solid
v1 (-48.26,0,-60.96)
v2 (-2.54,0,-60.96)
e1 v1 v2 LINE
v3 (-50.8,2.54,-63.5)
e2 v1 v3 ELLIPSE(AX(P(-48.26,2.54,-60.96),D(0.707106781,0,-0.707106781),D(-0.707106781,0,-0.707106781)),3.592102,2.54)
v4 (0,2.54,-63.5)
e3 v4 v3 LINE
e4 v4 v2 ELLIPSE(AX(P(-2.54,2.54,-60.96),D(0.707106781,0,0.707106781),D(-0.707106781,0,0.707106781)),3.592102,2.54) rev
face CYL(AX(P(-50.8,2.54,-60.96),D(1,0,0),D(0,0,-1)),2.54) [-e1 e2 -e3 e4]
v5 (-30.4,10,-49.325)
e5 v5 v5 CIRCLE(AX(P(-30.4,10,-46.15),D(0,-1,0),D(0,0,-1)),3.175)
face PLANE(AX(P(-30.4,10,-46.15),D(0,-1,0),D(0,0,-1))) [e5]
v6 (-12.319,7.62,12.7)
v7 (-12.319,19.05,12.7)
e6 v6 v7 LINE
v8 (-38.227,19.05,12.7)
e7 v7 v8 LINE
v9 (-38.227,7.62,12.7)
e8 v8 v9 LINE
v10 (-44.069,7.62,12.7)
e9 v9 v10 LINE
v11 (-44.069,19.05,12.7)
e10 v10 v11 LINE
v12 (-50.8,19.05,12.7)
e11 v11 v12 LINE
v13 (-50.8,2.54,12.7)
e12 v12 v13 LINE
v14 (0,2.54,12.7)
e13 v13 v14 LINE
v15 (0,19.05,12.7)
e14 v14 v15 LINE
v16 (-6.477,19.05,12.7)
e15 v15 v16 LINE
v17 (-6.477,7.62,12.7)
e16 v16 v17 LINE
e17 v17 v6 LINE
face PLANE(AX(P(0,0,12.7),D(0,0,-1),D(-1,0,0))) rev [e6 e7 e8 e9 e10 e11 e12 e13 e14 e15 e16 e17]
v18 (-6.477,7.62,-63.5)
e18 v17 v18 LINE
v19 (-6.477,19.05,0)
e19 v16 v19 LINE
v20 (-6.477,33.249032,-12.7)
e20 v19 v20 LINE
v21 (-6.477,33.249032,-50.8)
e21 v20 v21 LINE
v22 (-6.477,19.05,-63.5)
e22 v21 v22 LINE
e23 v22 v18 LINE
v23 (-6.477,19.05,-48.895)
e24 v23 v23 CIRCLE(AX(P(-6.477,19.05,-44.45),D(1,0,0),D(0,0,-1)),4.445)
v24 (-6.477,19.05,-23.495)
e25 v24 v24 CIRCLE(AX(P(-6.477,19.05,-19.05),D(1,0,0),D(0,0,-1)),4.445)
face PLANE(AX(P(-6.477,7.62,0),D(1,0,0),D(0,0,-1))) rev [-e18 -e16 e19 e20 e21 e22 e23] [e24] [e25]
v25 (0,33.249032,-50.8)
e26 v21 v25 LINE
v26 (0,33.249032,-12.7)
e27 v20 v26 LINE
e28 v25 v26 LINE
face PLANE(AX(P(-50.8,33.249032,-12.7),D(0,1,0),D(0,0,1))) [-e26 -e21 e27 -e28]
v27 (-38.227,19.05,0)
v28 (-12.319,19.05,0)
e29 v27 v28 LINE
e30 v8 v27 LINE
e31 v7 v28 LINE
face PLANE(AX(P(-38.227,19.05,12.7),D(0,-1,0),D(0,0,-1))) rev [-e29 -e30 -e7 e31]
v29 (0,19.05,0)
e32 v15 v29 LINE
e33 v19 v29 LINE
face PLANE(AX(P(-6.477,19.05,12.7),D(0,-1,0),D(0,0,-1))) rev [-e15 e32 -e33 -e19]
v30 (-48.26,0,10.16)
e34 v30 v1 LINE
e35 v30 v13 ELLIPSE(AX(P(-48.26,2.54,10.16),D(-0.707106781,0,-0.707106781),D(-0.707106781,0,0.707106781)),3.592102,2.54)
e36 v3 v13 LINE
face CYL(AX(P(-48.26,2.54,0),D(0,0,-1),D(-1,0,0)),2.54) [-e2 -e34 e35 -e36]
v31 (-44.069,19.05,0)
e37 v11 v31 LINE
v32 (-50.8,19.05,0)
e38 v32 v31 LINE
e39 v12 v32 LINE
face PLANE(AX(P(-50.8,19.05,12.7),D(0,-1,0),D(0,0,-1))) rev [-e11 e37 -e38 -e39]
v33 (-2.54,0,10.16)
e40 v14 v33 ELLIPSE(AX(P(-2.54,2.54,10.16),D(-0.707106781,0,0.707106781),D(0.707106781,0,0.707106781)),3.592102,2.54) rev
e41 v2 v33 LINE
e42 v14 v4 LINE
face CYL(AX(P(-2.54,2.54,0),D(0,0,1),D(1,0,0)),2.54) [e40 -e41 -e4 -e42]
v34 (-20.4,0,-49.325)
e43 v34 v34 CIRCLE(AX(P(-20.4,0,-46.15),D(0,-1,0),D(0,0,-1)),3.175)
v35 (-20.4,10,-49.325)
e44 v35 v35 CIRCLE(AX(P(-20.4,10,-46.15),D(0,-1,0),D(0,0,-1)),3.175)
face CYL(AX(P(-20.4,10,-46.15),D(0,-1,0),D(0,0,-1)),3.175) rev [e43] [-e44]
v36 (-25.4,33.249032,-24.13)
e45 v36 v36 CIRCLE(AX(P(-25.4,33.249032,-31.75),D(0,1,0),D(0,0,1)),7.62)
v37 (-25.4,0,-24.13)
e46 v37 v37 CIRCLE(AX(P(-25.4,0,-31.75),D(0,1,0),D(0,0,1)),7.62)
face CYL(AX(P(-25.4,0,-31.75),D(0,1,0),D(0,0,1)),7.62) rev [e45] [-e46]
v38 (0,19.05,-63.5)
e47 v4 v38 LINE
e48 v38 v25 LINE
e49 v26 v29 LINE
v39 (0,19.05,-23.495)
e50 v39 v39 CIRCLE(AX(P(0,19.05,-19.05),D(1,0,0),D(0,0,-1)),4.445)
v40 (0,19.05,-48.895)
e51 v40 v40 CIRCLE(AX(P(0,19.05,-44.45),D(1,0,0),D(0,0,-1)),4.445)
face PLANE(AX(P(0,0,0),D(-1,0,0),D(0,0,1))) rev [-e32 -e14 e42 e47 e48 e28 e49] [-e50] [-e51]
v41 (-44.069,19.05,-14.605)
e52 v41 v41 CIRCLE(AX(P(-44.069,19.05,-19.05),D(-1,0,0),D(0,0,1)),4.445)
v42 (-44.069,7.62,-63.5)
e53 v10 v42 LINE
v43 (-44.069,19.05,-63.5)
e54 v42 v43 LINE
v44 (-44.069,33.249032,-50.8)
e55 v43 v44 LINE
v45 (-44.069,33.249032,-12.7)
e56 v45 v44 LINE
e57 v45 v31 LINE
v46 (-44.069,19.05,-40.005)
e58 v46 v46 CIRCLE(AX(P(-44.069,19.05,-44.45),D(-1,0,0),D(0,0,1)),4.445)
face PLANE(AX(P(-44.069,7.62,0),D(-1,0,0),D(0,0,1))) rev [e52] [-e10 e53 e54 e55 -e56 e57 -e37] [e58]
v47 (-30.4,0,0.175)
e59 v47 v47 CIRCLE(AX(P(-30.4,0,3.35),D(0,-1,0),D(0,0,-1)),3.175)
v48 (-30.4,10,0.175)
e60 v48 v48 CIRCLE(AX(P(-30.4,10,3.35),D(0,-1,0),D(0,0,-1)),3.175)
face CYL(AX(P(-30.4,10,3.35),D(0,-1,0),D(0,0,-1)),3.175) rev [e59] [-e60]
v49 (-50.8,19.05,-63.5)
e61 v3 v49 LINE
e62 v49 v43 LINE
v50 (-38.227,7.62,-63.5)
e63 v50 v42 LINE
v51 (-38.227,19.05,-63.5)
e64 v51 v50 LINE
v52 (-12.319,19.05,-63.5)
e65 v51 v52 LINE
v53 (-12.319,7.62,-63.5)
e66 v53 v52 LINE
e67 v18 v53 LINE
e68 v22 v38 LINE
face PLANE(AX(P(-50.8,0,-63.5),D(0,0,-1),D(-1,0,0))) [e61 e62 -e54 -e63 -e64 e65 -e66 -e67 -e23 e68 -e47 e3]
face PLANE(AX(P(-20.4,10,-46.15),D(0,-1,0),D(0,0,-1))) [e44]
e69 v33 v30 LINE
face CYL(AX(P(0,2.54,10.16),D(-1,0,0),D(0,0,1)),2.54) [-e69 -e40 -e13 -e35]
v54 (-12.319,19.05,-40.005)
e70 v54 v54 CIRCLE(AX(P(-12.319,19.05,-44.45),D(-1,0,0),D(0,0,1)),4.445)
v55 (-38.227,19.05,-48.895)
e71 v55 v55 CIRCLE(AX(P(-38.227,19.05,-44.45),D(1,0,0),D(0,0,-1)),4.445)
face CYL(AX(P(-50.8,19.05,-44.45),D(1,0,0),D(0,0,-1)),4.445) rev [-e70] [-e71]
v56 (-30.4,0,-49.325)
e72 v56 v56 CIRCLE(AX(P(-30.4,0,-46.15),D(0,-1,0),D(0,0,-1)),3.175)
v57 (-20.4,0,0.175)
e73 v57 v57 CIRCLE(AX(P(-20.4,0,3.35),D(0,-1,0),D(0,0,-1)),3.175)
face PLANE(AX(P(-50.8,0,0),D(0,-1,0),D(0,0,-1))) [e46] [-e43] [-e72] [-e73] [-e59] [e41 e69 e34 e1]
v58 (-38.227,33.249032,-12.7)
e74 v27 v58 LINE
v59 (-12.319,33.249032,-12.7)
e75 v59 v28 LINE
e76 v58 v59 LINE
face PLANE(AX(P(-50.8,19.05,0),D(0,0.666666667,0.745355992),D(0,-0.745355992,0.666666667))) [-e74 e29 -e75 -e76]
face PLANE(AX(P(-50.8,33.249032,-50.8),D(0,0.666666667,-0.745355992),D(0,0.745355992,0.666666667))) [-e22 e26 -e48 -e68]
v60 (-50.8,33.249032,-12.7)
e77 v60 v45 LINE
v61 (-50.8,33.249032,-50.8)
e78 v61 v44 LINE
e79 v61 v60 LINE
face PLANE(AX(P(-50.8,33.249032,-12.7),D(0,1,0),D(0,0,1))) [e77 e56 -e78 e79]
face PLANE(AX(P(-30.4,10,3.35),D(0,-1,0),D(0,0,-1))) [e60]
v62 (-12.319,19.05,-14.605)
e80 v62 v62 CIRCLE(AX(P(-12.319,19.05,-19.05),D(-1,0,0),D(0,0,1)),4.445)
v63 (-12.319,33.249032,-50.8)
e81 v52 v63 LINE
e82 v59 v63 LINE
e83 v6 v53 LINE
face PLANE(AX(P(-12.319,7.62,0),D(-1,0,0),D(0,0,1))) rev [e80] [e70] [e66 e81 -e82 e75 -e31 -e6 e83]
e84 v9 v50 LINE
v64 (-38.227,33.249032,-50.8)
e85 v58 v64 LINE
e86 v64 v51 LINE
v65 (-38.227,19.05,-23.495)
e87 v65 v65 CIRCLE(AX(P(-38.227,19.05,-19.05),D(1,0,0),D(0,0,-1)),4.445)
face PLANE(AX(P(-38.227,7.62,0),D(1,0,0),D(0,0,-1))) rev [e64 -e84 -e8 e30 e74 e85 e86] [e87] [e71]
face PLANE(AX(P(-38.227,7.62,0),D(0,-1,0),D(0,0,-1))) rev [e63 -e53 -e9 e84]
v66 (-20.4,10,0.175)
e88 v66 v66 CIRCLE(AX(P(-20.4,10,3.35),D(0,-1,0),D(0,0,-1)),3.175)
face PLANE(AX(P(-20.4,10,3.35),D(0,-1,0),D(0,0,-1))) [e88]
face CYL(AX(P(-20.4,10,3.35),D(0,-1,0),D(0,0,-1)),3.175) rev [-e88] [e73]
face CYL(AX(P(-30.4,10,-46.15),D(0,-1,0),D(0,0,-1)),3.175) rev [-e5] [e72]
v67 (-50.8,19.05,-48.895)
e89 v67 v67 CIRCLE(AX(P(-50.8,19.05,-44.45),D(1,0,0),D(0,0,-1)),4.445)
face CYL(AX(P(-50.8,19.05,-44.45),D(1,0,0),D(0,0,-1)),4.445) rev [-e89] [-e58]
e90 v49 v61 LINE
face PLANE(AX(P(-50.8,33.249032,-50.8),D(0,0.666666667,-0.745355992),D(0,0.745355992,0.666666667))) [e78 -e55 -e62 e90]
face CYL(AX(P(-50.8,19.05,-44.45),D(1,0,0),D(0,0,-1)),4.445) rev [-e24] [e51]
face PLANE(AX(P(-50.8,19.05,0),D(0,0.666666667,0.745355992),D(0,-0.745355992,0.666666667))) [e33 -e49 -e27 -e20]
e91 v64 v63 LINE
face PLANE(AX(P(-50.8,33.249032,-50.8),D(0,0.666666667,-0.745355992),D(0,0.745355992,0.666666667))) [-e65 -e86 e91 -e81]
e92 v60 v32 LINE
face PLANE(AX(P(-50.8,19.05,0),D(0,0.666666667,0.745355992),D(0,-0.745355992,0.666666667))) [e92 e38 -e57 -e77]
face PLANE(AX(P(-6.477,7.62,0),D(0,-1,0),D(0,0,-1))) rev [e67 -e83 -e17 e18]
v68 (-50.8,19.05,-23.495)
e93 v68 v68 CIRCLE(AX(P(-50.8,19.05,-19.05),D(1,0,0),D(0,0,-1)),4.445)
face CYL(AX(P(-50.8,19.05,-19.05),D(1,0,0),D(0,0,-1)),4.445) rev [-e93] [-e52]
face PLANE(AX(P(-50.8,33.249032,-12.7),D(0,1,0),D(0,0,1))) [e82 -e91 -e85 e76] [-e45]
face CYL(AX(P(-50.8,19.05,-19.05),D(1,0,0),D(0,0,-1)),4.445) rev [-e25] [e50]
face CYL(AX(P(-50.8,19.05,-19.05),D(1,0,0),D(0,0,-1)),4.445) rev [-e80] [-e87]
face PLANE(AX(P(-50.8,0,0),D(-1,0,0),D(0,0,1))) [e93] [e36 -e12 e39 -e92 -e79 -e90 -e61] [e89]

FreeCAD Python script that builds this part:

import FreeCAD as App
import Part
import Sketcher
Q = App.Units.Quantity


def edges_at(feature, points):
    """Names of the edges that pass closest to the given points."""
    edges = feature.Shape.Edges
    near = lambda p: min(range(len(edges)), key=lambda i: edges[i].distToShape(Part.Vertex(*p))[0])
    return sorted({f"Edge{near(p) + 1}" for p in points})

doc = App.newDocument("Part")
body = doc.addObject("PartDesign::Body", "Body")

# Sketch on YZ plane
sketch1 = body.newObject("Sketcher::SketchObject", "Sketch")
sketch1.AttachmentSupport = (doc.getObject("YZ_Plane"), [""])
sketch1.MapMode = "FlatFace"
sketch1.addGeometry(Part.LineSegment(App.Vector(6, 0, 0), App.Vector(0, 0, 0)), False)
sketch1.addGeometry(Part.LineSegment(App.Vector(0, 0, 0), App.Vector(0, -64, 0)), False)
sketch1.addGeometry(Part.LineSegment(App.Vector(0, -64, 0), App.Vector(6, -64, 0)), False)
sketch1.addGeometry(Part.LineSegment(App.Vector(6, -64, 0), App.Vector(6, 0, 0)), False)
sketch1.addConstraint(Sketcher.Constraint("Coincident", 0, 2, 1, 1))
sketch1.addConstraint(Sketcher.Constraint("Coincident", 1, 2, 2, 1))
sketch1.addConstraint(Sketcher.Constraint("Coincident", 2, 2, 3, 1))
sketch1.addConstraint(Sketcher.Constraint("Coincident", 3, 2, 0, 1))
sketch1.addConstraint(Sketcher.Constraint("Horizontal", 0))
sketch1.addConstraint(Sketcher.Constraint("Vertical", 1))
sketch1.addConstraint(Sketcher.Constraint("Horizontal", 2))
sketch1.addConstraint(Sketcher.Constraint("Vertical", 3))
sketch1.addConstraint(Sketcher.Constraint("Coincident", 0, 2, -1, 1))
sketch1.addConstraint(Sketcher.Constraint("DistanceY", 1, 2, 1, 1, Q("2.5 in")))
sketch1.addConstraint(Sketcher.Constraint("DistanceX", 0, 2, 0, 1, Q("0.25 in")))
pad1 = body.newObject("PartDesign::Pad", "Pad")
pad1.Profile = sketch1
pad1.Length = Q("2 in")
pad1.Reversed = True

# Sketch on YZ plane
sketch2 = body.newObject("Sketcher::SketchObject", "Sketch001")
sketch2.AttachmentSupport = (doc.getObject("YZ_Plane"), [""])
sketch2.MapMode = "FlatFace"
sketch2.addGeometry(Part.LineSegment(App.Vector(19, 0, 0), App.Vector(6, 0, 0)), False)
sketch2.addGeometry(Part.LineSegment(App.Vector(6, 0, 0), App.Vector(6, -64, 0)), False)
sketch2.addGeometry(Part.LineSegment(App.Vector(6, -64, 0), App.Vector(19, -64, 0)), False)
sketch2.addGeometry(Part.LineSegment(App.Vector(19, -64, 0), App.Vector(33, -51, 0)), False)
sketch2.addGeometry(Part.LineSegment(App.Vector(33, -51, 0), App.Vector(33, -13, 0)), False)
sketch2.addGeometry(Part.LineSegment(App.Vector(33, -13, 0), App.Vector(19, 0, 0)), False)
sketch2.addConstraint(Sketcher.Constraint("Coincident", 0, 2, 1, 1))
sketch2.addConstraint(Sketcher.Constraint("Coincident", 1, 2, 2, 1))
sketch2.addConstraint(Sketcher.Constraint("Coincident", 2, 2, 3, 1))
sketch2.addConstraint(Sketcher.Constraint("Coincident", 3, 2, 4, 1))
sketch2.addConstraint(Sketcher.Constraint("Coincident", 4, 2, 5, 1))
sketch2.addConstraint(Sketcher.Constraint("Coincident", 5, 2, 0, 1))
sketch2.addConstraint(Sketcher.Constraint("Horizontal", 0))
sketch2.addConstraint(Sketcher.Constraint("Vertical", 1))
sketch2.addConstraint(Sketcher.Constraint("Horizontal", 2))
sketch2.addConstraint(Sketcher.Constraint("Vertical", 4))
sketch2.addConstraint(Sketcher.Constraint("PointOnObject", 0, 2, -1))
sketch2.addConstraint(Sketcher.Constraint("Vertical", 2, 2, 5, 2))
sketch2.addConstraint(Sketcher.Constraint("Equal", 3, 5))
sketch2.addConstraint(Sketcher.Constraint("DistanceX", 0, 2, 0, 1, Q("0.5 in")))
sketch2.addConstraint(Sketcher.Constraint("DistanceY", 1, 2, 1, 1, Q("2.5 in")))
sketch2.addConstraint(Sketcher.Constraint("DistanceY", 4, 1, 4, 2, Q("1.5 in")))
sketch2.addConstraint(Sketcher.Constraint("Distance", 3, Q("0.75 in")))
sketch2.addConstraint(Sketcher.Constraint("DistanceX", -1, 1, 0, 2, Q("0.25 in")))
pad2 = body.newObject("PartDesign::Pad", "Pad001")
pad2.Profile = sketch2
pad2.Length = Q("2 in")
pad2.Reversed = True

# Sketch on XY plane
sketch3 = body.newObject("Sketcher::SketchObject", "Sketch002")
sketch3.AttachmentSupport = (doc.getObject("XY_Plane"), [""])
sketch3.MapMode = "FlatFace"
sketch3.AttachmentOffset = App.Placement(App.Vector(0, 0, -2.5 * 25.4), App.Rotation())
sketch3.addGeometry(Part.LineSegment(App.Vector(-6, 33, 0), App.Vector(-6, 8, 0)), False)
sketch3.addGeometry(Part.LineSegment(App.Vector(-6, 8, 0), App.Vector(-12, 8, 0)), False)
sketch3.addGeometry(Part.LineSegment(App.Vector(-12, 8, 0), App.Vector(-12, 33, 0)), False)
sketch3.addGeometry(Part.LineSegment(App.Vector(-12, 33, 0), App.Vector(-6, 33, 0)), False)
sketch3.addConstraint(Sketcher.Constraint("Coincident", 0, 2, 1, 1))
sketch3.addConstraint(Sketcher.Constraint("Coincident", 1, 2, 2, 1))
sketch3.addConstraint(Sketcher.Constraint("Coincident", 2, 2, 3, 1))
sketch3.addConstraint(Sketcher.Constraint("Coincident", 3, 2, 0, 1))
sketch3.addConstraint(Sketcher.Constraint("Vertical", 0))
sketch3.addConstraint(Sketcher.Constraint("Horizontal", 1))
sketch3.addConstraint(Sketcher.Constraint("Vertical", 2))
sketch3.addConstraint(Sketcher.Constraint("Horizontal", 3))
sketch3.addConstraint(Sketcher.Constraint("DistanceX", 1, 2, 1, 1, Q("0.23 in")))
sketch3.addConstraint(Sketcher.Constraint("DistanceY", -1, 1, 0, 2, Q("0.3 in")))
sketch3.addConstraint(Sketcher.Constraint("DistanceX", 0, 2, -1, 1, Q("0.255 in")))
sketch3.addConstraint(Sketcher.Constraint("DistanceY", 0, 2, 0, 1, Q("25.629032 mm")))
pocket1 = body.newObject("PartDesign::Pocket", "Pocket")
pocket1.Profile = sketch3
pocket1.Type = "ThroughAll"
pocket1.Reversed = True
doc.recompute()

linearpattern = body.newObject("PartDesign::LinearPattern", "LinearPattern")
linearpattern.Originals = [pocket1]
linearpattern.Direction = (doc.getObject("X_Axis"), [""])
linearpattern.Mode = "offset"
linearpattern.Offset = Q("1.25 in")
linearpattern.Occurrences = 2
linearpattern.Reversed = True
body.Tip = linearpattern

# Sketch on YZ plane
sketch4 = body.newObject("Sketcher::SketchObject", "Sketch003")
sketch4.AttachmentSupport = (doc.getObject("YZ_Plane"), [""])
sketch4.MapMode = "FlatFace"
sketch4.addGeometry(Part.Circle(App.Vector(19.1, -19.1, 0), App.Vector(0, 0, 1), 4.4), False)
sketch4.addGeometry(Part.Circle(App.Vector(19.1, -44.5, 0), App.Vector(0, 0, 1), 4.4), False)
sketch4.addConstraint(Sketcher.Constraint("Equal", 0, 1))
sketch4.addConstraint(Sketcher.Constraint("Vertical", 0, 3, 1, 3))
sketch4.addConstraint(Sketcher.Constraint("Diameter", 0, Q("0.35 in")))
sketch4.addConstraint(Sketcher.Constraint("DistanceY", 1, 3, 0, 3, Q("1 in")))
sketch4.addConstraint(Sketcher.Constraint("DistanceX", -1, 1, 0, 3, Q("0.75 in")))
sketch4.addConstraint(Sketcher.Constraint("DistanceY", 0, 3, -1, 1, Q("0.75 in")))
pocket2 = body.newObject("PartDesign::Pocket", "Pocket001")
pocket2.Profile = sketch4
pocket2.Type = "ThroughAll"

# Sketch on XY plane
sketch5 = body.newObject("Sketcher::SketchObject", "Sketch004")
sketch5.AttachmentSupport = (doc.getObject("XY_Plane"), [""])
sketch5.MapMode = "FlatFace"
sketch5.addGeometry(Part.LineSegment(App.Vector(-51, 0, 0), App.Vector(0, 0, 0)), False)
sketch5.addGeometry(Part.LineSegment(App.Vector(0, 0, 0), App.Vector(0, 19, 0)), False)
sketch5.addGeometry(Part.LineSegment(App.Vector(0, 19, 0), App.Vector(-6, 19, 0)), False)
sketch5.addGeometry(Part.LineSegment(App.Vector(-6, 19, 0), App.Vector(-6, 8, 0)), False)
sketch5.addGeometry(Part.LineSegment(App.Vector(-6, 8, 0), App.Vector(-12, 8, 0)), False)
sketch5.addGeometry(Part.LineSegment(App.Vector(-12, 8, 0), App.Vector(-12, 19, 0)), False)
sketch5.addGeometry(Part.LineSegment(App.Vector(-12, 19, 0), App.Vector(-38, 19, 0)), False)
sketch5.addGeometry(Part.LineSegment(App.Vector(-38, 19, 0), App.Vector(-38, 8, 0)), False)
sketch5.addGeometry(Part.LineSegment(App.Vector(-38, 8, 0), App.Vector(-44, 8, 0)), False)
sketch5.addGeometry(Part.LineSegment(App.Vector(-44, 8, 0), App.Vector(-44, 19, 0)), False)
sketch5.addGeometry(Part.LineSegment(App.Vector(-44, 19, 0), App.Vector(-51, 19, 0)), False)
sketch5.addGeometry(Part.LineSegment(App.Vector(-51, 19, 0), App.Vector(-51, 0, 0)), False)
sketch5.addConstraint(Sketcher.Constraint("Coincident", 0, 2, 1, 1))
sketch5.addConstraint(Sketcher.Constraint("Coincident", 1, 2, 2, 1))
sketch5.addConstraint(Sketcher.Constraint("Coincident", 2, 2, 3, 1))
sketch5.addConstraint(Sketcher.Constraint("Coincident", 3, 2, 4, 1))
sketch5.addConstraint(Sketcher.Constraint("Coincident", 4, 2, 5, 1))
sketch5.addConstraint(Sketcher.Constraint("Coincident", 5, 2, 6, 1))
sketch5.addConstraint(Sketcher.Constraint("Coincident", 6, 2, 7, 1))
sketch5.addConstraint(Sketcher.Constraint("Coincident", 7, 2, 8, 1))
sketch5.addConstraint(Sketcher.Constraint("Coincident", 8, 2, 9, 1))
sketch5.addConstraint(Sketcher.Constraint("Coincident", 9, 2, 10, 1))
sketch5.addConstraint(Sketcher.Constraint("Coincident", 10, 2, 11, 1))
sketch5.addConstraint(Sketcher.Constraint("Coincident", 11, 2, 0, 1))
sketch5.addConstraint(Sketcher.Constraint("Horizontal", 0))
sketch5.addConstraint(Sketcher.Constraint("Vertical", 1))
sketch5.addConstraint(Sketcher.Constraint("Horizontal", 2))
sketch5.addConstraint(Sketcher.Constraint("Vertical", 3))
sketch5.addConstraint(Sketcher.Constraint("Horizontal", 4))
sketch5.addConstraint(Sketcher.Constraint("Vertical", 5))
sketch5.addConstraint(Sketcher.Constraint("Horizontal", 6))
sketch5.addConstraint(Sketcher.Constraint("Vertical", 7))
sketch5.addConstraint(Sketcher.Constraint("Horizontal", 8))
sketch5.addConstraint(Sketcher.Constraint("Vertical", 9))
sketch5.addConstraint(Sketcher.Constraint("Horizontal", 10))
sketch5.addConstraint(Sketcher.Constraint("Vertical", 11))
sketch5.addConstraint(Sketcher.Constraint("Coincident", 0, 2, -1, 1))
sketch5.addConstraint(Sketcher.Constraint("Horizontal", 2, 2, 5, 2))
sketch5.addConstraint(Sketcher.Constraint("Horizontal", 4, 2, 7, 2))
sketch5.addConstraint(Sketcher.Constraint("Horizontal", 6, 2, 9, 2))
sketch5.addConstraint(Sketcher.Constraint("Equal", 4, 8))
sketch5.addConstraint(Sketcher.Constraint("DistanceX", 0, 1, 0, 2, Q("2 in")))
sketch5.addConstraint(Sketcher.Constraint("DistanceX", 4, 2, 4, 1, Q("0.23 in")))
sketch5.addConstraint(Sketcher.Constraint("DistanceX", 6, 2, 6, 1, Q("1.02 in")))
sketch5.addConstraint(Sketcher.Constraint("DistanceY", 1, 1, 1, 2, Q("0.75 in")))
sketch5.addConstraint(Sketcher.Constraint("DistanceY", 3, 2, 3, 1, Q("0.45 in")))
sketch5.addConstraint(Sketcher.Constraint("DistanceX", 2, 2, 2, 1, Q("0.255 in")))
pad3 = body.newObject("PartDesign::Pad", "Pad002")
pad3.Profile = sketch5
pad3.Length = Q("0.5 in")

# Sketch on XZ plane
sketch6 = body.newObject("Sketcher::SketchObject", "Sketch005")
sketch6.AttachmentSupport = (doc.getObject("XZ_Plane"), [""])
sketch6.MapMode = "FlatFace"
sketch6.AttachmentOffset = App.Placement(App.Vector(0, 0, -33.249032), App.Rotation())
sketch6.addGeometry(Part.Circle(App.Vector(-25, -32, 0), App.Vector(0, 0, 1), 8), False)
sketch6.addConstraint(Sketcher.Constraint("Diameter", 0, Q("0.6 in")))
sketch6.addConstraint(Sketcher.Constraint("DistanceX", 0, 3, -1, 1, Q("1 in")))
sketch6.addConstraint(Sketcher.Constraint("DistanceY", 0, 3, -1, 1, Q("1.25 in")))
pocket3 = body.newObject("PartDesign::Pocket", "Pocket002")
pocket3.Profile = sketch6
pocket3.Type = "ThroughAll"
pocket3.Reversed = True
doc.recompute()

fillet = body.newObject("PartDesign::Fillet", "Fillet")
fillet.Base = (pocket3, edges_at(pocket3, [
    (-25.4, 0, 12.7),
    (0, 0, -25.4),
    (-50.8, 0, -25.4),
    (-25.4, 0, -63.5),
]))
fillet.Radius = Q("0.1 in")

# Sketch on XZ plane
sketch7 = body.newObject("Sketcher::SketchObject", "Sketch006")
sketch7.AttachmentSupport = (doc.getObject("XZ_Plane"), [""])
sketch7.MapMode = "FlatFace"
sketch7.addGeometry(Part.Circle(App.Vector(-30.4, -46.1, 0), App.Vector(0, 0, 1), 3.2), False)
sketch7.addGeometry(Part.Circle(App.Vector(-20.4, -46.1, 0), App.Vector(0, 0, 1), 3.2), False)
sketch7.addGeometry(Part.Circle(App.Vector(-20.4, 3.4, 0), App.Vector(0, 0, 1), 3.2), False)
sketch7.addGeometry(Part.Circle(App.Vector(-30.4, 3.4, 0), App.Vector(0, 0, 1), 3.2), False)
sketch7.addConstraint(Sketcher.Constraint("Equal", 0, 1))
sketch7.addConstraint(Sketcher.Constraint("Equal", 1, 2))
sketch7.addConstraint(Sketcher.Constraint("Equal", 2, 3))
sketch7.addConstraint(Sketcher.Constraint("Horizontal", 0, 3, 1, 3))
sketch7.addConstraint(Sketcher.Constraint("Horizontal", 2, 3, 3, 3))
sketch7.addConstraint(Sketcher.Constraint("Vertical", 1, 3, 2, 3))
sketch7.addConstraint(Sketcher.Constraint("Vertical", 0, 3, 3, 3))
sketch7.addConstraint(Sketcher.Constraint("Diameter", 0, Q("0.25 in")))
sketch7.addConstraint(Sketcher.Constraint("DistanceX", 0, 3, -1, 1, Q("30.4 mm")))
sketch7.addConstraint(Sketcher.Constraint("DistanceY", 0, 3, -1, 1, Q("46.15 mm")))
sketch7.addConstraint(Sketcher.Constraint("DistanceX", 1, 3, -1, 1, Q("20.4 mm")))
sketch7.addConstraint(Sketcher.Constraint("DistanceY", -1, 1, 2, 3, Q("3.35 mm")))
pocket4 = body.newObject("PartDesign::Pocket", "Pocket003")
pocket4.Profile = sketch7
pocket4.Length = 10

doc.recompute()
